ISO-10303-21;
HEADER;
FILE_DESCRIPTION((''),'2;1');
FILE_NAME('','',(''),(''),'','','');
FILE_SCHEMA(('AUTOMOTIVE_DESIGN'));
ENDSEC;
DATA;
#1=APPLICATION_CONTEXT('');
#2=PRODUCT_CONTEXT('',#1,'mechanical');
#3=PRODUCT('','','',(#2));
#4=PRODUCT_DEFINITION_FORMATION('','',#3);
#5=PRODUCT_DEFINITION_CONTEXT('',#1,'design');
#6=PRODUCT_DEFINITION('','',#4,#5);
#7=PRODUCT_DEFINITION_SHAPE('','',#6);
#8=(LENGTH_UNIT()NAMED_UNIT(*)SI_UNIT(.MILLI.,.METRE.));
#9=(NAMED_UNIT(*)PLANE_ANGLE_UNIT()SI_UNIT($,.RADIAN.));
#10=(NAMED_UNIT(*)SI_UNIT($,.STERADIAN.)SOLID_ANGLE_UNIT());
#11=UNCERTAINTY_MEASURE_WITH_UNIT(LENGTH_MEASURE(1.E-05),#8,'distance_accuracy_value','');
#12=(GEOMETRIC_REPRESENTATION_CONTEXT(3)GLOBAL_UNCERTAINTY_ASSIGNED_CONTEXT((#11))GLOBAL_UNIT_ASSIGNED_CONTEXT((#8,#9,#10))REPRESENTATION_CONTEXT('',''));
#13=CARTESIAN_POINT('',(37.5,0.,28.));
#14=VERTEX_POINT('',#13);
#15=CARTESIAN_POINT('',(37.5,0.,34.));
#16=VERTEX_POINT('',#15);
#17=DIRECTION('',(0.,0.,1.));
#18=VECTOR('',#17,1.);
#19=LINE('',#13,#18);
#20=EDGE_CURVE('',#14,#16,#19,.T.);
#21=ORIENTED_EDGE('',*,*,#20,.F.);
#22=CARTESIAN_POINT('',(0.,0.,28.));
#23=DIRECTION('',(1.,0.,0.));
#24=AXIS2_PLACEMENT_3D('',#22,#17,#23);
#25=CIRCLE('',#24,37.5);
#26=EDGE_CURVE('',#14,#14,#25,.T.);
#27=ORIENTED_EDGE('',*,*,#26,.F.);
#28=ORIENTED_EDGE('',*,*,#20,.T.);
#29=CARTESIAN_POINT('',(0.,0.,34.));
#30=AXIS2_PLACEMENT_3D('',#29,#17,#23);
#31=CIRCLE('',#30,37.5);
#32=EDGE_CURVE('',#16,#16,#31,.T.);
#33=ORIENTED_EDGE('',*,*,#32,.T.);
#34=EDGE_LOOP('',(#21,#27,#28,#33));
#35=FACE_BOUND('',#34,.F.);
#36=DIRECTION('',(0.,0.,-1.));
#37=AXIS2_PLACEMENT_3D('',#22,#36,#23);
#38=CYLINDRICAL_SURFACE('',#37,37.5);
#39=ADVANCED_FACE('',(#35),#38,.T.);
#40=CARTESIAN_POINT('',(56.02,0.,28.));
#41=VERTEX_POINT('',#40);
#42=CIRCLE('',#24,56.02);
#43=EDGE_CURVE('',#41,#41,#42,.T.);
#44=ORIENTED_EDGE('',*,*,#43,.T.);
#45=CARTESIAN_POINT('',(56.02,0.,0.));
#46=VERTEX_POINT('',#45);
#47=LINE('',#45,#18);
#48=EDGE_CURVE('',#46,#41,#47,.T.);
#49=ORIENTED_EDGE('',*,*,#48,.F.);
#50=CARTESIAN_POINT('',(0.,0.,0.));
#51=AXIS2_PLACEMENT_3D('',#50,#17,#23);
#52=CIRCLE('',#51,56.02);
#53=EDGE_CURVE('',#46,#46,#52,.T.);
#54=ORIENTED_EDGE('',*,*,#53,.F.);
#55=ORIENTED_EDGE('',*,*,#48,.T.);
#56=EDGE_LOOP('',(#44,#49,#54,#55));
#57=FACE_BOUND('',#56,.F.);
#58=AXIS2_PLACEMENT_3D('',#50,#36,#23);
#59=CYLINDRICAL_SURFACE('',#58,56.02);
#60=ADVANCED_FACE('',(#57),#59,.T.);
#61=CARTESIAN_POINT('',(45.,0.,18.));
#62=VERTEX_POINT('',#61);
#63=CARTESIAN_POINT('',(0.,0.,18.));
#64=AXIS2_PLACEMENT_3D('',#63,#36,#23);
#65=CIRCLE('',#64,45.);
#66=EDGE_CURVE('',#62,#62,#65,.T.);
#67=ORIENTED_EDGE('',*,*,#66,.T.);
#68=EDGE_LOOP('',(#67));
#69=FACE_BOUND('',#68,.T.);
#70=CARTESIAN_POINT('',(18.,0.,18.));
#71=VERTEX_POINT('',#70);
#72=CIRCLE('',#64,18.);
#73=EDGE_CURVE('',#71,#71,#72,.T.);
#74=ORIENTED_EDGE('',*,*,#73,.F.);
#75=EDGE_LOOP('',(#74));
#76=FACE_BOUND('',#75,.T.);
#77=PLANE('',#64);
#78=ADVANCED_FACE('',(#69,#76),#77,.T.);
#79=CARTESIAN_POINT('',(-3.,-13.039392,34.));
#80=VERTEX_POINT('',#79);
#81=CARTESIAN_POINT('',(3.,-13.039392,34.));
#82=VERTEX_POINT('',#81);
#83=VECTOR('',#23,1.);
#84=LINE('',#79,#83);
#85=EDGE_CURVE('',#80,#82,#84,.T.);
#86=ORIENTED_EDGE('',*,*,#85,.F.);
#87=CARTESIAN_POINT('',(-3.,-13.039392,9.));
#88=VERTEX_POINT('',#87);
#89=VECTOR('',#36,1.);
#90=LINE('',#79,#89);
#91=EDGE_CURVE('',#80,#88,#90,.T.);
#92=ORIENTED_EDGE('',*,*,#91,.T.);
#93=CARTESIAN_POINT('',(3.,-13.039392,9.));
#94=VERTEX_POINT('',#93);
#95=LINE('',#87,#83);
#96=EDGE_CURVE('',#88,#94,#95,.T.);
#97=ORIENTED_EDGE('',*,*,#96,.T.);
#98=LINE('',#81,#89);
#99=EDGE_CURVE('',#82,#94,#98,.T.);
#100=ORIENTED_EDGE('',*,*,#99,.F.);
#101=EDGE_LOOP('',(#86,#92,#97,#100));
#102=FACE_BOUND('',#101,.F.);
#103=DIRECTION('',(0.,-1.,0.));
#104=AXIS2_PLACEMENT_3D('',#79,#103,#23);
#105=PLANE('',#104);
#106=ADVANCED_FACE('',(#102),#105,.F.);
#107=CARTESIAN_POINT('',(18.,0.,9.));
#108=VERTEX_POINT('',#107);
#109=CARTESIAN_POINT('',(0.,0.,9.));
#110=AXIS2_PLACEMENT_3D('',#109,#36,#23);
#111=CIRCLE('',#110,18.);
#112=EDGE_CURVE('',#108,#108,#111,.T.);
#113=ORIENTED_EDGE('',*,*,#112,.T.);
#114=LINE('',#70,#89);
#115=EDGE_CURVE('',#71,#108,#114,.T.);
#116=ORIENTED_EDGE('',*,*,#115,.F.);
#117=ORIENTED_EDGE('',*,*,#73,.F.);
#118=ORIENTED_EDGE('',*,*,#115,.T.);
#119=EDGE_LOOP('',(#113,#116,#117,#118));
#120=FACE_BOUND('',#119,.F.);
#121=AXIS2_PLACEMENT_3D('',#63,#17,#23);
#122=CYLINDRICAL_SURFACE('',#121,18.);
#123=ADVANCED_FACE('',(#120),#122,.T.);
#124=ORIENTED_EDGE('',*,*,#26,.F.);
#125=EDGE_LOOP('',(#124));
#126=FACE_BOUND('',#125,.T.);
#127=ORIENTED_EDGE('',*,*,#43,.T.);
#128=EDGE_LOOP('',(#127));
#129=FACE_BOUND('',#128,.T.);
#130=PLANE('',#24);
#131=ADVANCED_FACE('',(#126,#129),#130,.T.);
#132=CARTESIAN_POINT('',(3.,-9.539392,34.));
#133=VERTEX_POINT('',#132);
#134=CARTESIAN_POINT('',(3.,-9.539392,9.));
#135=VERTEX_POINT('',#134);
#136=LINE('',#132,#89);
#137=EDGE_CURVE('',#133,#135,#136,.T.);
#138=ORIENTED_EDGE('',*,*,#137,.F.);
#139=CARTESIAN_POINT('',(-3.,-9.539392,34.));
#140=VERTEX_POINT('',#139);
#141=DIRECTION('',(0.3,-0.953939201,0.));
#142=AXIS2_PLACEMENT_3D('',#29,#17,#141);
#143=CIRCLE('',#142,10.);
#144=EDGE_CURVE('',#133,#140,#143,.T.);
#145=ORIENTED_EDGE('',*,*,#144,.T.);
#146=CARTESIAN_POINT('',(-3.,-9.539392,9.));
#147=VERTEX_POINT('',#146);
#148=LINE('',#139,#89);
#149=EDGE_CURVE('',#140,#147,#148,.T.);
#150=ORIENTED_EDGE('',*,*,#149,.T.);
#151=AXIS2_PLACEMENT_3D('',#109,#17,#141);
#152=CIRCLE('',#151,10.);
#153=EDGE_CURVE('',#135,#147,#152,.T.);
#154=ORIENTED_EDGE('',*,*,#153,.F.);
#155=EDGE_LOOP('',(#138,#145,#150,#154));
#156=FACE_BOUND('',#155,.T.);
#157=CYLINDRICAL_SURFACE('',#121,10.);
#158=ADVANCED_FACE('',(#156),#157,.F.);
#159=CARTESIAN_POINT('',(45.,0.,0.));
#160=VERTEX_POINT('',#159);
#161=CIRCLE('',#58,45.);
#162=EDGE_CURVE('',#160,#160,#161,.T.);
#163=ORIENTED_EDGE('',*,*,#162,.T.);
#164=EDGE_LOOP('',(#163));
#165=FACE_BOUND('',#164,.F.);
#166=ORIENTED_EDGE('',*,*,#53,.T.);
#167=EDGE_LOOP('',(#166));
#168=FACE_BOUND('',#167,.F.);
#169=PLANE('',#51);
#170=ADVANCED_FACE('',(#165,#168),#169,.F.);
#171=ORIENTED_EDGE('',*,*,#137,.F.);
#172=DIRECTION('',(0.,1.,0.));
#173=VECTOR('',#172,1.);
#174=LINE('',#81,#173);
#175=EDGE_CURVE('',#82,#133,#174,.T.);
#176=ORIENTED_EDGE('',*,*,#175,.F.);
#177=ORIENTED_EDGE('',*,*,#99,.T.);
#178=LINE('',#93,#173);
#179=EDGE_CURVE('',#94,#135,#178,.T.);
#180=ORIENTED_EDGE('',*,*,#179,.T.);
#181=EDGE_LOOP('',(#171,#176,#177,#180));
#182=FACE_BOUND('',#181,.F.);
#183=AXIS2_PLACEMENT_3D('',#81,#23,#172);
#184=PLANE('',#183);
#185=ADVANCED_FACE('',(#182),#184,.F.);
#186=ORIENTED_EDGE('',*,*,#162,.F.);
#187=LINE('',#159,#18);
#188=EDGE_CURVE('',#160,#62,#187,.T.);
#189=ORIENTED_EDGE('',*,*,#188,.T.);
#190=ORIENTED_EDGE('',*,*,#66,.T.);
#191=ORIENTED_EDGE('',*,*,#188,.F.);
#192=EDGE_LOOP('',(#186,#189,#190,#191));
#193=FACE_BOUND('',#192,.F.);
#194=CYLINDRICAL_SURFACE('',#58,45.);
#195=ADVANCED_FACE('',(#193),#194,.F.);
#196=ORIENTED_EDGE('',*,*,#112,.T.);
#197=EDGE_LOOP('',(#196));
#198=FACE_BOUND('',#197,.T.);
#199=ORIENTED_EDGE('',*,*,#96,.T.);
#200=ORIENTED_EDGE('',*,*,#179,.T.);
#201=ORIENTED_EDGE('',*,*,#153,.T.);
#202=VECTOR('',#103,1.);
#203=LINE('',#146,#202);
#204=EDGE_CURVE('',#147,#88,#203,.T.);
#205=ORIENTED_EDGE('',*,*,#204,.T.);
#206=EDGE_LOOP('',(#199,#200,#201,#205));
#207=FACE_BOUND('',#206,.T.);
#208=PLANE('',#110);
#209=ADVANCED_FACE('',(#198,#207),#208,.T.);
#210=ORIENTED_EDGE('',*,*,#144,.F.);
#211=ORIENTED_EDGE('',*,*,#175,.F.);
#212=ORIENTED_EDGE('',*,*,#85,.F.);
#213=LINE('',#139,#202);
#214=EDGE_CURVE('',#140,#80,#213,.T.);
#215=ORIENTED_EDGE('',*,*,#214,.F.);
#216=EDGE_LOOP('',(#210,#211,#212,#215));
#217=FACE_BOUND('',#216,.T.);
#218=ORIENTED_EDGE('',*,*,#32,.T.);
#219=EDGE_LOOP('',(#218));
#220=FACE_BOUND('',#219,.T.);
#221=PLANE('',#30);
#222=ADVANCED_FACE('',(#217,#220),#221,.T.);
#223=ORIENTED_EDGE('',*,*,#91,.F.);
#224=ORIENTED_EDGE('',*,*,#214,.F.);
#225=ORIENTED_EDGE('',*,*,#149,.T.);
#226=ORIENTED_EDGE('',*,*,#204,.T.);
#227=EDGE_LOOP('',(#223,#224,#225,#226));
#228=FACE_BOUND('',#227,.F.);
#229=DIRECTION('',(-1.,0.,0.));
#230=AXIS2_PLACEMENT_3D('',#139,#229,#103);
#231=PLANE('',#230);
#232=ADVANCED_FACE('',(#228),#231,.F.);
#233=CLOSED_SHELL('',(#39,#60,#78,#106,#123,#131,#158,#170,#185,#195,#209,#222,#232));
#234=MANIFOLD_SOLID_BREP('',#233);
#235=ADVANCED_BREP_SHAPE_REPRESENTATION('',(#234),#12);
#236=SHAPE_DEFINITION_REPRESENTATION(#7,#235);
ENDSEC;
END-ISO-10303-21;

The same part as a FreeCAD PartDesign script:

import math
import FreeCAD as App
import Part
import Sketcher

doc = App.newDocument("Part")
body = doc.addObject("PartDesign::Body", "Body")

sketch1 = body.newObject("Sketcher::SketchObject", "Sketch")
sketch1.AttachmentSupport = (doc.getObject("XY_Plane"), [""])
sketch1.MapMode = "FlatFace"
sketch1.addGeometry(Part.Circle(App.Vector(0, 0, 0), App.Vector(0, 0, 1), 56), False)
sketch1.addGeometry(Part.Circle(App.Vector(0, 0, 0), App.Vector(0, 0, 1), 10), False)
sketch1.addConstraint(Sketcher.Constraint("Coincident", 0, 3, -1, 1))
sketch1.addConstraint(Sketcher.Constraint("Coincident", 1, 3, -1, 1))
sketch1.addConstraint(Sketcher.Constraint("Diameter", 1, 20.0))
sketch1.addConstraint(Sketcher.Constraint("Diameter", 0, 112.04))
pad1 = body.newObject("PartDesign::Pad", "Pad")
pad1.Profile = sketch1
pad1.Length = 28

sketch2 = body.newObject("Sketcher::SketchObject", "Sketch001")
sketch2.AttachmentSupport = (doc.getObject("XY_Plane"), [""])
sketch2.MapMode = "FlatFace"
sketch2.AttachmentOffset = App.Placement(App.Vector(0, 0, 28), App.Rotation())
sketch2.addGeometry(Part.Circle(App.Vector(0, 0, 0), App.Vector(0, 0, 1), 38), False)
sketch2.addGeometry(Part.Circle(App.Vector(0, 0, 0), App.Vector(0, 0, 1), 10), False)
sketch2.addConstraint(Sketcher.Constraint("Coincident", 0, 3, -1, 1))
sketch2.addConstraint(Sketcher.Constraint("Coincident", 1, 3, -1, 1))
sketch2.addConstraint(Sketcher.Constraint("Diameter", 0, 75.0))
sketch2.addConstraint(Sketcher.Constraint("Diameter", 1, 20.0))
pad2 = body.newObject("PartDesign::Pad", "Pad001")
pad2.Profile = sketch2
pad2.Length = 6

sketch3 = body.newObject("Sketcher::SketchObject", "Sketch002")
sketch3.AttachmentSupport = (doc.getObject("XY_Plane"), [""])
sketch3.MapMode = "FlatFace"
sketch3.addGeometry(Part.Circle(App.Vector(0, 0, 0), App.Vector(0, 0, 1), 45), False)
sketch3.addGeometry(Part.Circle(App.Vector(0, 0, 0), App.Vector(0, 0, 1), 10), False)
sketch3.addConstraint(Sketcher.Constraint("Coincident", 0, 3, -1, 1))
sketch3.addConstraint(Sketcher.Constraint("Coincident", 1, 3, -1, 1))
sketch3.addConstraint(Sketcher.Constraint("Diameter", 0, 90.0))
sketch3.addConstraint(Sketcher.Constraint("Diameter", 1, 20.0))
pocket1 = body.newObject("PartDesign::Pocket", "Pocket")
pocket1.Profile = sketch3
pocket1.Length = 18
pocket1.Reversed = True

sketch4 = body.newObject("Sketcher::SketchObject", "Sketch003")
sketch4.AttachmentSupport = (doc.getObject("XY_Plane"), [""])
sketch4.MapMode = "FlatFace"
sketch4.AttachmentOffset = App.Placement(App.Vector(0, 0, 18), App.Rotation())
sketch4.addGeometry(Part.Circle(App.Vector(0, 0, 0), App.Vector(0, 0, 1), 18), False)
sketch4.addGeometry(Part.Circle(App.Vector(0, 0, 0), App.Vector(0, 0, 1), 10), False)
sketch4.addConstraint(Sketcher.Constraint("Coincident", 0, 3, -1, 1))
sketch4.addConstraint(Sketcher.Constraint("Coincident", 1, 3, -1, 1))
sketch4.addConstraint(Sketcher.Constraint("Diameter", 0, 36.0))
sketch4.addConstraint(Sketcher.Constraint("Diameter", 1, 20.0))
pad3 = body.newObject("PartDesign::Pad", "Pad002")
pad3.Profile = sketch4
pad3.Length = 9
pad3.Reversed = True

sketch5 = body.newObject("Sketcher::SketchObject", "Sketch004")
sketch5.AttachmentSupport = (doc.getObject("XY_Plane"), [""])
sketch5.MapMode = "FlatFace"
sketch5.AttachmentOffset = App.Placement(App.Vector(0, 0, 34), App.Rotation())
sketch5.addGeometry(Part.ArcOfCircle(Part.Circle(App.Vector(0, 0, 0), App.Vector(0, 0, 1), 10), math.radians(-107), math.radians(-73)), False)
sketch5.addGeometry(Part.LineSegment(App.Vector(-3, -9.5, 0), App.Vector(-3, -13, 0)), False)
sketch5.addGeometry(Part.LineSegment(App.Vector(-3, -13, 0), App.Vector(3, -13, 0)), False)
sketch5.addGeometry(Part.LineSegment(App.Vector(3, -13, 0), App.Vector(3, -9.5, 0)), False)
sketch5.addConstraint(Sketcher.Constraint("Coincident", 0, 1, 1, 1))
sketch5.addConstraint(Sketcher.Constraint("Coincident", 1, 2, 2, 1))
sketch5.addConstraint(Sketcher.Constraint("Coincident", 2, 2, 3, 1))
sketch5.addConstraint(Sketcher.Constraint("Coincident", 3, 2, 0, 2))
sketch5.addConstraint(Sketcher.Constraint("Vertical", 1))
sketch5.addConstraint(Sketcher.Constraint("Horizontal", 2))
sketch5.addConstraint(Sketcher.Constraint("Vertical", 3))
sketch5.addConstraint(Sketcher.Constraint("Coincident", 0, 3, -1, 1))
sketch5.addConstraint(Sketcher.Constraint("Horizontal", 0, 1, 3, 2))
sketch5.addConstraint(Sketcher.Constraint("Radius", 0, 10.0))
sketch5.addConstraint(Sketcher.Constraint("DistanceX", 2, 1, 2, 2, 6.0))
sketch5.addConstraint(Sketcher.Constraint("DistanceY", 1, 2, 1, 1, 3.5))
pocket2 = body.newObject("PartDesign::Pocket", "Pocket001")
pocket2.Profile = sketch5
pocket2.Length = 25

doc.recompute()
